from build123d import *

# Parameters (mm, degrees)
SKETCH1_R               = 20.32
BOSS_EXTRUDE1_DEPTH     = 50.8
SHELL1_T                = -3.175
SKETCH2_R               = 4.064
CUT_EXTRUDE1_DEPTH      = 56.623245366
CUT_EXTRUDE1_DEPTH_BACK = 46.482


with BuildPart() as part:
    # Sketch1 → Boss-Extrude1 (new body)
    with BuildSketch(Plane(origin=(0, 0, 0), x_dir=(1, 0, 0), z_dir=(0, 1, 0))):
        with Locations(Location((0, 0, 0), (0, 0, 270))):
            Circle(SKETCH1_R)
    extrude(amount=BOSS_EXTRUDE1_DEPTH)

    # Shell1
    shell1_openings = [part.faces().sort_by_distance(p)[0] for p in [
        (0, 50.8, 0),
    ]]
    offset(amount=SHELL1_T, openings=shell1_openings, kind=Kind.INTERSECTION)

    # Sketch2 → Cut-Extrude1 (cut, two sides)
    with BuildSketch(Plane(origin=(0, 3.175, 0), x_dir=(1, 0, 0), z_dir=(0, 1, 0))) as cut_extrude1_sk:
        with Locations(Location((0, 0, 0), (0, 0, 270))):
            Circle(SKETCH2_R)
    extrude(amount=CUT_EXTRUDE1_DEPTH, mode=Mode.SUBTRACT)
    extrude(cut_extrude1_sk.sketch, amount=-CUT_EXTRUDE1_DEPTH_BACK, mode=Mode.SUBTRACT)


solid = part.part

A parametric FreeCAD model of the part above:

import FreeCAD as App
import Part
import Sketcher

V = App.Vector
Q = App.Units.Quantity


def faces_at(feature, points):
    """Names of the faces that lie closest to the given points."""
    faces = feature.Shape.Faces
    near = lambda p: min(range(len(faces)), key=lambda i: faces[i].distToShape(Part.Vertex(*p))[0])
    return sorted({f"Face{near(p) + 1}" for p in points})

doc = App.newDocument("Part")
body = doc.addObject("PartDesign::Body", "Body")

# Sketch on XZ plane
sketch1 = doc.addObject("Sketcher::SketchObject", "Sketch")
body.addObject(sketch1)
sketch1.AttachmentSupport = (doc.XZ_Plane, [""])
sketch1.MapMode = "FlatFace"
sketch1.addGeometry(Part.Circle(V(0, 0, 0), V(0, 0, 1), 20), False)
sketch1.addConstraint([
    Sketcher.Constraint("Coincident", 0, 3, -1, 1),
    Sketcher.Constraint("Diameter", 0, Q("1.6 in")),
])
pad1 = doc.addObject("PartDesign::Pad", "Pad")
body.addObject(pad1)
pad1.Profile = sketch1
pad1.Length = Q("2 in")
pad1.Reversed = True
doc.recompute()

thickness = doc.addObject("PartDesign::Thickness", "Thickness")
body.addObject(thickness)
thickness.Base = (pad1, faces_at(pad1, [(0, 50.8, 0)]))
thickness.Value = Q("0.125 in")
thickness.Reversed = True
thickness.Join = "Intersection"

# Sketch on XZ plane
sketch2 = doc.addObject("Sketcher::SketchObject", "Sketch001")
body.addObject(sketch2)
sketch2.AttachmentSupport = (doc.XZ_Plane, [""])
sketch2.MapMode = "FlatFace"
sketch2.AttachmentOffset = App.Placement(V(0, 0, -0.125 * 25.4), App.Rotation())
sketch2.addGeometry(Part.Circle(V(0, 0, 0), V(0, 0, 1), 4.1), False)
sketch2.addConstraint([
    Sketcher.Constraint("Coincident", 0, 3, -1, 1),
    Sketcher.Constraint("Diameter", 0, Q("0.32 in")),
])
pocket1 = doc.addObject("PartDesign::Pocket", "Pocket")
body.addObject(pocket1)
pocket1.Profile = sketch2
pocket1.Type = "ThroughAll"
pocket1.Midplane = True

doc.recompute()
